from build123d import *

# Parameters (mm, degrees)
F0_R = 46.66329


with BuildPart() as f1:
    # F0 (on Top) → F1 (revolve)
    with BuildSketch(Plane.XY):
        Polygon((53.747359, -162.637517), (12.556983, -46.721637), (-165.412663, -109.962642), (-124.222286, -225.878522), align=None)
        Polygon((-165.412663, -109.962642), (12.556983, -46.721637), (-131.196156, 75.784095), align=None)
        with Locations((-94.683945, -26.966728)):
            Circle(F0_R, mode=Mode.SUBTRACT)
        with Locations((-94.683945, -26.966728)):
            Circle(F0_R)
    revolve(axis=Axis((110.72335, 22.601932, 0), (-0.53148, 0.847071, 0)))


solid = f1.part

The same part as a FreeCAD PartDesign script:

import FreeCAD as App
import Part
import Sketcher

V = App.Vector
Q = App.Units.Quantity

doc = App.newDocument("Part")
params = doc.addObject("Spreadsheet::Sheet", "Params")
for row, (alias, value) in enumerate([
    ("revolution_angle", "360 deg"),
], start=1):
    params.set(f"A{row}", alias)
    params.set(f"B{row}", "=" + value)
    params.setAlias(f"B{row}", alias)

body = doc.addObject("PartDesign::Body", "Body")

sketch1 = body.newObject("Sketcher::SketchObject", "Sketch")
sketch1.AttachmentSupport = (doc.getObject("XY_Plane"), [""])
sketch1.MapMode = "FlatFace"
sketch1.addGeometry([
    Part.LineSegment(V(54, -163, 0), V(13, -47, 0)),
    Part.LineSegment(V(13, -47, 0), V(-131, 76, 0)),
    Part.LineSegment(V(-131, 76, 0), V(-165, -110, 0)),
    Part.LineSegment(V(-165, -110, 0), V(-124, -226, 0)),
    Part.LineSegment(V(-124, -226, 0), V(54, -163, 0)),
], False)
sketch1.addGeometry(Part.LineSegment(V(178, -85, 0), V(18, 170, 0)), True)
sketch1.addConstraint([
    Sketcher.Constraint("Coincident", 0, 2, 1, 1),
    Sketcher.Constraint("Coincident", 1, 2, 2, 1),
    Sketcher.Constraint("Coincident", 2, 2, 3, 1),
    Sketcher.Constraint("Coincident", 3, 2, 4, 1),
    Sketcher.Constraint("Coincident", 4, 2, 0, 1),
    Sketcher.Constraint("Parallel", 0, 3),
    Sketcher.Constraint("Perpendicular", 3, 4),
    Sketcher.Constraint("Equal", 1, 2),
    Sketcher.Constraint("Equal", 0, 3),
    Sketcher.Constraint("Equal", 2, 4),
    Sketcher.Constraint("Distance", 0, Q("123.016821 mm")),
    Sketcher.Constraint("DistanceY", 3, 2, -1, 1, Q("225.878522 mm")),
    Sketcher.Constraint("DistanceX", -1, 1, 4, 2, Q("53.747359 mm")),
    Sketcher.Constraint("DistanceX", 1, 2, 0, 2, Q("143.753139 mm")),
    Sketcher.Constraint("DistanceY", 0, 2, 1, 2, Q("122.505732 mm")),
    Sketcher.Constraint("DistanceX", 4, 2, 5, 1, Q("124.276948 mm")),
    Sketcher.Constraint("DistanceY", 3, 2, 5, 1, Q("141.216419 mm")),
    Sketcher.Constraint("DistanceX", 1, 2, 5, 2, Q("149.64161 mm")),
    Sketcher.Constraint("DistanceY", 1, 2, 5, 2, Q("93.890031 mm")),
])
revolution = body.newObject("PartDesign::Revolution", "Revolution")
revolution.Profile = sketch1
revolution.ReferenceAxis = (sketch1, ["Axis0"])
revolution.setExpression("Angle", "Params.revolution_angle")

doc.recompute()
